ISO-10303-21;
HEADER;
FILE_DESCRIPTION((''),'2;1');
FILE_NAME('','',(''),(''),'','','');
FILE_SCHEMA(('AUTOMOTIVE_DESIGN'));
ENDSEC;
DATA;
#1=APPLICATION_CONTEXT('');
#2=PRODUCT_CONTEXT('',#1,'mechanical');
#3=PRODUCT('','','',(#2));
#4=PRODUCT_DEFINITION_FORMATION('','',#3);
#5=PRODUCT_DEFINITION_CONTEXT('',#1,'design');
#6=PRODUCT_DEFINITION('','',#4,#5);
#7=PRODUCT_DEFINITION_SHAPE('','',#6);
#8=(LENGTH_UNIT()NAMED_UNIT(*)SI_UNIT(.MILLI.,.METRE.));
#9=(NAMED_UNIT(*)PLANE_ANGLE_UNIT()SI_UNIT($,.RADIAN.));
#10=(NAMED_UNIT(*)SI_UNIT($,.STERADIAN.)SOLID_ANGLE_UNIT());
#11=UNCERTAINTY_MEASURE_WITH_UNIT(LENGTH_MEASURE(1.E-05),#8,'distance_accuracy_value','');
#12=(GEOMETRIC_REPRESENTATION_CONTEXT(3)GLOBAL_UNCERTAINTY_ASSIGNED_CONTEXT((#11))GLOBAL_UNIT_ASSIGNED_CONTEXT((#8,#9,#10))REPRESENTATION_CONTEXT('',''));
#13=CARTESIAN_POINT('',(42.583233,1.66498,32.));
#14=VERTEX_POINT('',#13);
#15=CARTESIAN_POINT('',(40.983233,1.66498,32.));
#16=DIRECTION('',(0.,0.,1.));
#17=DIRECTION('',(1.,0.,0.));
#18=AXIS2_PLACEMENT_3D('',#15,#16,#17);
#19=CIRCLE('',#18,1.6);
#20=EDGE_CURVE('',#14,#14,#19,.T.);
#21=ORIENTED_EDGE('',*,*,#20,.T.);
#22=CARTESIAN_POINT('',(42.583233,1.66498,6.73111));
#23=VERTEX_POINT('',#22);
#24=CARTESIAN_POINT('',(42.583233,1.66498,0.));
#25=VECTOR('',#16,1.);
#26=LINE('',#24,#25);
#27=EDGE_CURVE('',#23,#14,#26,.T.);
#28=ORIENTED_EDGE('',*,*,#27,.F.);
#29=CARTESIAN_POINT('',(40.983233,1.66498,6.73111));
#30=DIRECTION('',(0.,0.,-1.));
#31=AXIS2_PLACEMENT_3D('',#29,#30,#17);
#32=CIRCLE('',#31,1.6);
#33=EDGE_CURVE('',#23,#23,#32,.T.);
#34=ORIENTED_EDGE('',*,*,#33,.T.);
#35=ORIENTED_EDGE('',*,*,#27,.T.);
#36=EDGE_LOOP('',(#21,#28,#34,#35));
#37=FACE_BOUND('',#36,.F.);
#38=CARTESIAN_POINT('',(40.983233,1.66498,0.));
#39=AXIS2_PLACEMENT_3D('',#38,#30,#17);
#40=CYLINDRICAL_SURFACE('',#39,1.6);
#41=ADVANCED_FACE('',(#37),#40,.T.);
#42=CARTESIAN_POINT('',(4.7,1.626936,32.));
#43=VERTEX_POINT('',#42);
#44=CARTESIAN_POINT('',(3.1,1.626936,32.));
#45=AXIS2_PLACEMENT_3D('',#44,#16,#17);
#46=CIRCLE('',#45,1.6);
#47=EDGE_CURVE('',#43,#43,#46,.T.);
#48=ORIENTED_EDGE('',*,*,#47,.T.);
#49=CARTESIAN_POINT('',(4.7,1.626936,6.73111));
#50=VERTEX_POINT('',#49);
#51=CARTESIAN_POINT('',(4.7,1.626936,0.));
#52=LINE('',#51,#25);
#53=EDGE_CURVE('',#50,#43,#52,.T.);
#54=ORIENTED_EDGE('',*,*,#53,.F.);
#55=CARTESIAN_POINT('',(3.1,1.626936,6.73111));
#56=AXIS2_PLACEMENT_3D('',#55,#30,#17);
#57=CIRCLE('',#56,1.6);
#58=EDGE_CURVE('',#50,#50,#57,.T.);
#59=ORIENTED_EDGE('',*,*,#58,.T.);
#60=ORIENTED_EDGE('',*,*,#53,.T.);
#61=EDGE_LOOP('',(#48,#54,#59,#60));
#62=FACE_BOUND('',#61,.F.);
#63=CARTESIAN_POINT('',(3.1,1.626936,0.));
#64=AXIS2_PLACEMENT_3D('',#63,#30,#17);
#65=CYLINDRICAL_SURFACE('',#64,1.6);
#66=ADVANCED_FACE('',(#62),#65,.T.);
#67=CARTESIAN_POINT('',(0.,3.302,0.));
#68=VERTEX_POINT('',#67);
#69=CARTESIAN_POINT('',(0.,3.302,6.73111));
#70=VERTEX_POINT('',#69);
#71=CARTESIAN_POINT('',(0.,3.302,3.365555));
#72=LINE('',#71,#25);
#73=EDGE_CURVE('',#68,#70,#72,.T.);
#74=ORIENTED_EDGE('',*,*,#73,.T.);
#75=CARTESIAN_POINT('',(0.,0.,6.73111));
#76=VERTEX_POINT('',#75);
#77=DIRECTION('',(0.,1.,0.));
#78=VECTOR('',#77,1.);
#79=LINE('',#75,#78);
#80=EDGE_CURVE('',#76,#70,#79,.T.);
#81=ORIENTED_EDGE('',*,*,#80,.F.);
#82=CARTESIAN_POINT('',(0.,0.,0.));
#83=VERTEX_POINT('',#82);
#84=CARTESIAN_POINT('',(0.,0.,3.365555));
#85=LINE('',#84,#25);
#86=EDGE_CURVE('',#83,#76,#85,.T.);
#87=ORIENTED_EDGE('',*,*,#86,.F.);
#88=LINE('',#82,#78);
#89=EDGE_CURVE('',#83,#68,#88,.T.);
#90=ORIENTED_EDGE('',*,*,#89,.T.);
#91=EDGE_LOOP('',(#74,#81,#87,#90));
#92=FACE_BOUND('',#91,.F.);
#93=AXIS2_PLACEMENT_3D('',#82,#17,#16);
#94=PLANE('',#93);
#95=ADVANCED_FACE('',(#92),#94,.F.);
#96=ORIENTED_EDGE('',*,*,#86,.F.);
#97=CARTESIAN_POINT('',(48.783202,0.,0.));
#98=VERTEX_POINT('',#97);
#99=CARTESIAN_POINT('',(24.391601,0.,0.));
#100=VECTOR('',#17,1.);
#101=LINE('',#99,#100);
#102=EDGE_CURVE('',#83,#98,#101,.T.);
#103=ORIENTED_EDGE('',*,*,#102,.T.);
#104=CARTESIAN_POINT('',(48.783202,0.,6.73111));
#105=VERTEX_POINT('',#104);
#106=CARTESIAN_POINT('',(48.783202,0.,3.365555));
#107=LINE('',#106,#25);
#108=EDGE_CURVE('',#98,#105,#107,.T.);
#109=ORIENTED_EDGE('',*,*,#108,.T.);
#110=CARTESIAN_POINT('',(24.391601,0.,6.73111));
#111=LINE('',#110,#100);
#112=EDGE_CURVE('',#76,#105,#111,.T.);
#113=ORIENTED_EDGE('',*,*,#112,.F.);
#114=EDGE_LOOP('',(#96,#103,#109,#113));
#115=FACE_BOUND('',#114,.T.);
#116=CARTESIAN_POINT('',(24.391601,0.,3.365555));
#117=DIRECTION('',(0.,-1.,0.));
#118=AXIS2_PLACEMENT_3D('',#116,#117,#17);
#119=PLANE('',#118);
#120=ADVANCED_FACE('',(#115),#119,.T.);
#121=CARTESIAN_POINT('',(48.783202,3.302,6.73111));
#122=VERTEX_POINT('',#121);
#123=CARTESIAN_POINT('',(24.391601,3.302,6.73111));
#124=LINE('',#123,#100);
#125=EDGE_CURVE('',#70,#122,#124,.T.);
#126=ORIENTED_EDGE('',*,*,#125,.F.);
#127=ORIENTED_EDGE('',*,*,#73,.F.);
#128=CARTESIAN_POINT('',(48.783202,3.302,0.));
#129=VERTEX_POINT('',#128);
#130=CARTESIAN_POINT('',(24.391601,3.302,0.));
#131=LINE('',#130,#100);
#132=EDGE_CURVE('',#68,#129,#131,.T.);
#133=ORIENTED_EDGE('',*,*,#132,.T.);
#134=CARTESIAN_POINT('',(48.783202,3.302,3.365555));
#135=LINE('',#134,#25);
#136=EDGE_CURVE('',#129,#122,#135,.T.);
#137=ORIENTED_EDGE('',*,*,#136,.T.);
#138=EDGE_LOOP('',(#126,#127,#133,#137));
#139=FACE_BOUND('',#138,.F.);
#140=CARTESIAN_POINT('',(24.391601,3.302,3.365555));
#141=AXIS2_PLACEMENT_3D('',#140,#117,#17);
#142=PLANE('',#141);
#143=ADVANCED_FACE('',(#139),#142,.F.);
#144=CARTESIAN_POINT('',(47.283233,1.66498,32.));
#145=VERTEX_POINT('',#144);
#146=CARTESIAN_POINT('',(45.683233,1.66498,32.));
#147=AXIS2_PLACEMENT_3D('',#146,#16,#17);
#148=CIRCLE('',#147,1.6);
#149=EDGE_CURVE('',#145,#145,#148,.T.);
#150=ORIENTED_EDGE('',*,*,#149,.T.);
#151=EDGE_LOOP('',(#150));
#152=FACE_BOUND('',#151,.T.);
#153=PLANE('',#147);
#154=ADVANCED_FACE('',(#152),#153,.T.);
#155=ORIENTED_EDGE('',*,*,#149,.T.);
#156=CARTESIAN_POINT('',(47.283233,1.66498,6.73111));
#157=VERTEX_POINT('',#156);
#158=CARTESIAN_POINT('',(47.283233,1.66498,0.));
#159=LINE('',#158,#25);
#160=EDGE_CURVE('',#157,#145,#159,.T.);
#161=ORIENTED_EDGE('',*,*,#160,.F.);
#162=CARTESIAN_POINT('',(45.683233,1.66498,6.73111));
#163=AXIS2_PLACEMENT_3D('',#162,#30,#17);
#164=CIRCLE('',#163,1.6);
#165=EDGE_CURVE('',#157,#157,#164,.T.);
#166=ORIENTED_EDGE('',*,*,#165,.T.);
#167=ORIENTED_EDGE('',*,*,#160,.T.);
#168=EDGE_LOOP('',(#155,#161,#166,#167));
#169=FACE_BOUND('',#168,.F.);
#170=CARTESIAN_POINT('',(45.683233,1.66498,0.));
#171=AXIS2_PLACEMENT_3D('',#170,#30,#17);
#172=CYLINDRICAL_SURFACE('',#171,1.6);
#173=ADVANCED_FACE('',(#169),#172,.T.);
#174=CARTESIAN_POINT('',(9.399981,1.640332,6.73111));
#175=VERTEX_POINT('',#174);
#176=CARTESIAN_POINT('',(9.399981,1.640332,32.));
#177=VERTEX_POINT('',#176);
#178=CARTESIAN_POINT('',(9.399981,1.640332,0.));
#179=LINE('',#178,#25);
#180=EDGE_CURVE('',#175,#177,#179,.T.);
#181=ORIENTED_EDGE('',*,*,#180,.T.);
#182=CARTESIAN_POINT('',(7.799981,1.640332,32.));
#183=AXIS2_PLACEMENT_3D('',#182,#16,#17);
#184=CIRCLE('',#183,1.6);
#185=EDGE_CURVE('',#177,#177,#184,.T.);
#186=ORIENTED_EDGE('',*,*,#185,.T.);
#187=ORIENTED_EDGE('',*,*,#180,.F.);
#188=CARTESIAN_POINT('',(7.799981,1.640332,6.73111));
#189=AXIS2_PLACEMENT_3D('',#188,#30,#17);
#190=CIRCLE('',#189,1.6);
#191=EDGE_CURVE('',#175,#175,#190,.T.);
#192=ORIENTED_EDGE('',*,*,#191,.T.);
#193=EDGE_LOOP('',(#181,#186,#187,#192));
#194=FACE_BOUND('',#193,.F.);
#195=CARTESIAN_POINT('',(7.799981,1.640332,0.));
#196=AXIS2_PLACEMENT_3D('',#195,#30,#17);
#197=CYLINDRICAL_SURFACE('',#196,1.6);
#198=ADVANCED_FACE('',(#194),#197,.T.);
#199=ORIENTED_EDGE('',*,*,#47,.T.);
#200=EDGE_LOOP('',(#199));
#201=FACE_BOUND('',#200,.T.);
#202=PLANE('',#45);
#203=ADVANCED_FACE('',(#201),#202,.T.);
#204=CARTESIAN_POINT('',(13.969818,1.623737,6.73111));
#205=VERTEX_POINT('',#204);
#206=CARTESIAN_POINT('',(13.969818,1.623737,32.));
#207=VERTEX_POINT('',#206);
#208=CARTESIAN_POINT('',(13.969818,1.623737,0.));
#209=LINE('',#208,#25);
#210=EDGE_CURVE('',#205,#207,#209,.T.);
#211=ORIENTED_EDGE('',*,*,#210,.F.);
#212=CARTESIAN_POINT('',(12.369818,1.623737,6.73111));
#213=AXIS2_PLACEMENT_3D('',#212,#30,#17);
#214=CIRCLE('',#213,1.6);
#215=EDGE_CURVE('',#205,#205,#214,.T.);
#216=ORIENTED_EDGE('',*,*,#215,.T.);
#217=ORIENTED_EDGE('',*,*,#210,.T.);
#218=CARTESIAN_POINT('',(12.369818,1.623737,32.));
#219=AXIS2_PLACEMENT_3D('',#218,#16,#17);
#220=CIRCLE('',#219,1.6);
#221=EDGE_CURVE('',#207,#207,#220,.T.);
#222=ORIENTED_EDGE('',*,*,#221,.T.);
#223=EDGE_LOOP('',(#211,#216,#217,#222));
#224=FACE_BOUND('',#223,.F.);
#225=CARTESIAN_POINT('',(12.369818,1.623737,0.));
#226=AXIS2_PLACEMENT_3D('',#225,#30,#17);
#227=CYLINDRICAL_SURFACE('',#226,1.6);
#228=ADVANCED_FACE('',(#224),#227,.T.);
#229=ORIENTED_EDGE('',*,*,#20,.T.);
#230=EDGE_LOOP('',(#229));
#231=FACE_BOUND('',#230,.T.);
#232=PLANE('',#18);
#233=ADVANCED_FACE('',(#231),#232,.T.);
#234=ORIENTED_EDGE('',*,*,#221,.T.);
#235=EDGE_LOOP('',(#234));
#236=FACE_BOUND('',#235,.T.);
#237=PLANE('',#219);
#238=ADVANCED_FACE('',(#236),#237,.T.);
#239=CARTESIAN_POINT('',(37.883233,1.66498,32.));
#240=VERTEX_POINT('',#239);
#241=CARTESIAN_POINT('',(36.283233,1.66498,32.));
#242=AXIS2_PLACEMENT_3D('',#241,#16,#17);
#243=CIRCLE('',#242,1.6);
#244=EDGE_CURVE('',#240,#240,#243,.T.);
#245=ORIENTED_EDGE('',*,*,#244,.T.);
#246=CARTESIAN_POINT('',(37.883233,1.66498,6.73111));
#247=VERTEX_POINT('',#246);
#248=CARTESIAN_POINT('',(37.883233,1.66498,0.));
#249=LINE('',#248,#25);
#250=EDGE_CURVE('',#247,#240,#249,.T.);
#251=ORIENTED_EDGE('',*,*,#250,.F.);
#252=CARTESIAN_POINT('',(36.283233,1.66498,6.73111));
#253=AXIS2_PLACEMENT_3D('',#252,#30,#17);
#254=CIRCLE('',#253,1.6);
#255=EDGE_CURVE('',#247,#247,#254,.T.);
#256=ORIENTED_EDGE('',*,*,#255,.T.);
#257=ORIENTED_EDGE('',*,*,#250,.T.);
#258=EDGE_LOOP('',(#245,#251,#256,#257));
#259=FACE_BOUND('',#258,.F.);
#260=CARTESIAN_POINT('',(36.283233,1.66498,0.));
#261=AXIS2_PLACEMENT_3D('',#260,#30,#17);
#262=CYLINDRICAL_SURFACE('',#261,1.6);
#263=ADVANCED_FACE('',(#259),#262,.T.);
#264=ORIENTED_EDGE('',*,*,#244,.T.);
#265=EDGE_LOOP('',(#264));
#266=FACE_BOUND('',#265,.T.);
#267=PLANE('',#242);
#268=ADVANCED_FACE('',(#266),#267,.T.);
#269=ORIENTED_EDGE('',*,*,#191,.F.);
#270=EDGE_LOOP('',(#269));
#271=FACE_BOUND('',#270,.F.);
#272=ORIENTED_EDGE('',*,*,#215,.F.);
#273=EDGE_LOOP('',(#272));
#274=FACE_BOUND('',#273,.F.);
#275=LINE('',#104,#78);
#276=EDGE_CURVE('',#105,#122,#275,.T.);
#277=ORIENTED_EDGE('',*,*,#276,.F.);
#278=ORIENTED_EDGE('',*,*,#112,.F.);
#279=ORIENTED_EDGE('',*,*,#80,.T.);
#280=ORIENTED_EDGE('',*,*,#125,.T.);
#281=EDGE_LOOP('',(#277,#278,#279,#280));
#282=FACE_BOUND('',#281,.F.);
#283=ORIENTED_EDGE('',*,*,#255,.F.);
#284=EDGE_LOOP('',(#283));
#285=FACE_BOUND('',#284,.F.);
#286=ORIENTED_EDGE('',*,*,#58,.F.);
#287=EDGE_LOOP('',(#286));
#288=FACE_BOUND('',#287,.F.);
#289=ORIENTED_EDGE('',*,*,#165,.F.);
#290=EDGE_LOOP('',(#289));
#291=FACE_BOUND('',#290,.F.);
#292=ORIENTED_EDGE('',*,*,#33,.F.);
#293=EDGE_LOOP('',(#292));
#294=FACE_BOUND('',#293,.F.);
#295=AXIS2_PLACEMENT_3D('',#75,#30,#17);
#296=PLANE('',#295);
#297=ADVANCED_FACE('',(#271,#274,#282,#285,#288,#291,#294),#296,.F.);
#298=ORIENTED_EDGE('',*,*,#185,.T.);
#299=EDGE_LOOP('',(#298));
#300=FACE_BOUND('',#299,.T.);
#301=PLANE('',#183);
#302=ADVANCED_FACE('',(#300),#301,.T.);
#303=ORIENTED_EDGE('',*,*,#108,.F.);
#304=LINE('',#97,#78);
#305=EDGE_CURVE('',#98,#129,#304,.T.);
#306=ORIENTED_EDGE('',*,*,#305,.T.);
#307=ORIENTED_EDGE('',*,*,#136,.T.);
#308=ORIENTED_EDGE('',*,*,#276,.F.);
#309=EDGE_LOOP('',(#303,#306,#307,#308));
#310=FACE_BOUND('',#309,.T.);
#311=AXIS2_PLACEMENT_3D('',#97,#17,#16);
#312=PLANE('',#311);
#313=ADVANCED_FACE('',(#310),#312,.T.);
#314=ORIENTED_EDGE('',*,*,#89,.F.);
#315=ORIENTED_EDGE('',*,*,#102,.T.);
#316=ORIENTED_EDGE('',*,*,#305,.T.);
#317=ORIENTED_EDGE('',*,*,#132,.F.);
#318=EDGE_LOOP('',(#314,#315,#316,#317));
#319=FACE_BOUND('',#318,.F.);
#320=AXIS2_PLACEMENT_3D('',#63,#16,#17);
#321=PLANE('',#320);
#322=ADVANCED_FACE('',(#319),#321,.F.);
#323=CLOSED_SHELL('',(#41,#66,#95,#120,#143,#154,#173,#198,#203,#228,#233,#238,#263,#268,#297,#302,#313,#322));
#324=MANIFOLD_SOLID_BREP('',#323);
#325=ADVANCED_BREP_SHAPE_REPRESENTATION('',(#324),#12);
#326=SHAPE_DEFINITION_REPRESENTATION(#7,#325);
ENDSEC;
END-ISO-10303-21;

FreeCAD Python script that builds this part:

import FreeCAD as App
import Part
import Sketcher
from FreeCAD import Vector

doc = App.newDocument("Part")
body = doc.addObject("PartDesign::Body", "Body")

# Sketch on XZ plane
sketch1 = doc.addObject("Sketcher::SketchObject", "Sketch")
body.addObject(sketch1)
sketch1.AttachmentSupport = (doc.XZ_Plane, [""])
sketch1.MapMode = "FlatFace"
sketch1.addGeometry([
    Part.LineSegment(Vector(0, 7, 0), Vector(0, 0, 0)),
    Part.LineSegment(Vector(0, 0, 0), Vector(49, 0, 0)),
    Part.LineSegment(Vector(49, 0, 0), Vector(49, 7, 0)),
    Part.LineSegment(Vector(49, 7, 0), Vector(0, 7, 0)),
], False)
sketch1.addConstraint([
    Sketcher.Constraint("Coincident", 0, 2, 1, 1),
    Sketcher.Constraint("Coincident", 1, 2, 2, 1),
    Sketcher.Constraint("Coincident", 2, 2, 3, 1),
    Sketcher.Constraint("Coincident", 3, 2, 0, 1),
    Sketcher.Constraint("Vertical", 0),
    Sketcher.Constraint("Horizontal", 1),
    Sketcher.Constraint("Vertical", 2),
    Sketcher.Constraint("Horizontal", 3),
    Sketcher.Constraint("Coincident", 0, 2, -1, 1),
    Sketcher.Constraint("DistanceY", 0, 2, 0, 1, 6.73111),
    Sketcher.Constraint("DistanceX", 1, 1, 1, 2, 48.783202),
])
pad1 = doc.addObject("PartDesign::Pad", "Pad")
body.addObject(pad1)
pad1.Profile = sketch1
pad1.Length = 3.302
pad1.Reversed = True

# Sketch on XY plane
sketch2 = doc.addObject("Sketcher::SketchObject", "Sketch001")
body.addObject(sketch2)
sketch2.AttachmentSupport = (doc.XY_Plane, [""])
sketch2.MapMode = "FlatFace"
sketch2.addGeometry([
    Part.Circle(Vector(3.1, 1.6, 0), Vector(0, 0, 1), 1.6),  # 0
    Part.Circle(Vector(7.8, 1.6, 0), Vector(0, 0, 1), 1.6),  # 1
    Part.Circle(Vector(12.4, 1.6, 0), Vector(0, 0, 1), 1.6),  # 2
    Part.Circle(Vector(36.3, 1.7, 0), Vector(0, 0, 1), 1.6),  # 3
    Part.Circle(Vector(41, 1.7, 0), Vector(0, 0, 1), 1.6),  # 4
    Part.Circle(Vector(45.7, 1.7, 0), Vector(0, 0, 1), 1.6),  # 5
], False)
sketch2.addConstraint([
    Sketcher.Constraint("Equal", 0, 1),
    Sketcher.Constraint("Equal", 1, 2),
    Sketcher.Constraint("Equal", 2, 3),
    Sketcher.Constraint("Equal", 3, 4),
    Sketcher.Constraint("Equal", 4, 5),
    Sketcher.Constraint("Horizontal", 3, 3, 4, 3),
    Sketcher.Constraint("Horizontal", 4, 3, 5, 3),
    Sketcher.Constraint("Diameter", 0, 3.2),
    Sketcher.Constraint("DistanceX", -1, 1, 0, 3, 3.1),
    Sketcher.Constraint("DistanceX", 3, 3, 4, 3, 4.7),
    Sketcher.Constraint("DistanceX", 4, 3, 5, 3, 4.7),
    Sketcher.Constraint("DistanceY", 2, 3, 0, 3, 0.003199),
    Sketcher.Constraint("DistanceX", -1, 1, 1, 3, 7.799981),
    Sketcher.Constraint("DistanceY", -1, 1, 1, 3, 1.640332),
    Sketcher.Constraint("DistanceY", -1, 1, 3, 3, 1.66498),
    Sketcher.Constraint("DistanceX", 0, 3, 2, 3, 9.269818),
    Sketcher.Constraint("DistanceX", 1, 3, 4, 3, 33.183252),
    Sketcher.Constraint("DistanceY", -1, 1, 0, 3, 1.626936),
])
pad2 = doc.addObject("PartDesign::Pad", "Pad001")
body.addObject(pad2)
pad2.Profile = sketch2
pad2.Length = 32

doc.recompute()
